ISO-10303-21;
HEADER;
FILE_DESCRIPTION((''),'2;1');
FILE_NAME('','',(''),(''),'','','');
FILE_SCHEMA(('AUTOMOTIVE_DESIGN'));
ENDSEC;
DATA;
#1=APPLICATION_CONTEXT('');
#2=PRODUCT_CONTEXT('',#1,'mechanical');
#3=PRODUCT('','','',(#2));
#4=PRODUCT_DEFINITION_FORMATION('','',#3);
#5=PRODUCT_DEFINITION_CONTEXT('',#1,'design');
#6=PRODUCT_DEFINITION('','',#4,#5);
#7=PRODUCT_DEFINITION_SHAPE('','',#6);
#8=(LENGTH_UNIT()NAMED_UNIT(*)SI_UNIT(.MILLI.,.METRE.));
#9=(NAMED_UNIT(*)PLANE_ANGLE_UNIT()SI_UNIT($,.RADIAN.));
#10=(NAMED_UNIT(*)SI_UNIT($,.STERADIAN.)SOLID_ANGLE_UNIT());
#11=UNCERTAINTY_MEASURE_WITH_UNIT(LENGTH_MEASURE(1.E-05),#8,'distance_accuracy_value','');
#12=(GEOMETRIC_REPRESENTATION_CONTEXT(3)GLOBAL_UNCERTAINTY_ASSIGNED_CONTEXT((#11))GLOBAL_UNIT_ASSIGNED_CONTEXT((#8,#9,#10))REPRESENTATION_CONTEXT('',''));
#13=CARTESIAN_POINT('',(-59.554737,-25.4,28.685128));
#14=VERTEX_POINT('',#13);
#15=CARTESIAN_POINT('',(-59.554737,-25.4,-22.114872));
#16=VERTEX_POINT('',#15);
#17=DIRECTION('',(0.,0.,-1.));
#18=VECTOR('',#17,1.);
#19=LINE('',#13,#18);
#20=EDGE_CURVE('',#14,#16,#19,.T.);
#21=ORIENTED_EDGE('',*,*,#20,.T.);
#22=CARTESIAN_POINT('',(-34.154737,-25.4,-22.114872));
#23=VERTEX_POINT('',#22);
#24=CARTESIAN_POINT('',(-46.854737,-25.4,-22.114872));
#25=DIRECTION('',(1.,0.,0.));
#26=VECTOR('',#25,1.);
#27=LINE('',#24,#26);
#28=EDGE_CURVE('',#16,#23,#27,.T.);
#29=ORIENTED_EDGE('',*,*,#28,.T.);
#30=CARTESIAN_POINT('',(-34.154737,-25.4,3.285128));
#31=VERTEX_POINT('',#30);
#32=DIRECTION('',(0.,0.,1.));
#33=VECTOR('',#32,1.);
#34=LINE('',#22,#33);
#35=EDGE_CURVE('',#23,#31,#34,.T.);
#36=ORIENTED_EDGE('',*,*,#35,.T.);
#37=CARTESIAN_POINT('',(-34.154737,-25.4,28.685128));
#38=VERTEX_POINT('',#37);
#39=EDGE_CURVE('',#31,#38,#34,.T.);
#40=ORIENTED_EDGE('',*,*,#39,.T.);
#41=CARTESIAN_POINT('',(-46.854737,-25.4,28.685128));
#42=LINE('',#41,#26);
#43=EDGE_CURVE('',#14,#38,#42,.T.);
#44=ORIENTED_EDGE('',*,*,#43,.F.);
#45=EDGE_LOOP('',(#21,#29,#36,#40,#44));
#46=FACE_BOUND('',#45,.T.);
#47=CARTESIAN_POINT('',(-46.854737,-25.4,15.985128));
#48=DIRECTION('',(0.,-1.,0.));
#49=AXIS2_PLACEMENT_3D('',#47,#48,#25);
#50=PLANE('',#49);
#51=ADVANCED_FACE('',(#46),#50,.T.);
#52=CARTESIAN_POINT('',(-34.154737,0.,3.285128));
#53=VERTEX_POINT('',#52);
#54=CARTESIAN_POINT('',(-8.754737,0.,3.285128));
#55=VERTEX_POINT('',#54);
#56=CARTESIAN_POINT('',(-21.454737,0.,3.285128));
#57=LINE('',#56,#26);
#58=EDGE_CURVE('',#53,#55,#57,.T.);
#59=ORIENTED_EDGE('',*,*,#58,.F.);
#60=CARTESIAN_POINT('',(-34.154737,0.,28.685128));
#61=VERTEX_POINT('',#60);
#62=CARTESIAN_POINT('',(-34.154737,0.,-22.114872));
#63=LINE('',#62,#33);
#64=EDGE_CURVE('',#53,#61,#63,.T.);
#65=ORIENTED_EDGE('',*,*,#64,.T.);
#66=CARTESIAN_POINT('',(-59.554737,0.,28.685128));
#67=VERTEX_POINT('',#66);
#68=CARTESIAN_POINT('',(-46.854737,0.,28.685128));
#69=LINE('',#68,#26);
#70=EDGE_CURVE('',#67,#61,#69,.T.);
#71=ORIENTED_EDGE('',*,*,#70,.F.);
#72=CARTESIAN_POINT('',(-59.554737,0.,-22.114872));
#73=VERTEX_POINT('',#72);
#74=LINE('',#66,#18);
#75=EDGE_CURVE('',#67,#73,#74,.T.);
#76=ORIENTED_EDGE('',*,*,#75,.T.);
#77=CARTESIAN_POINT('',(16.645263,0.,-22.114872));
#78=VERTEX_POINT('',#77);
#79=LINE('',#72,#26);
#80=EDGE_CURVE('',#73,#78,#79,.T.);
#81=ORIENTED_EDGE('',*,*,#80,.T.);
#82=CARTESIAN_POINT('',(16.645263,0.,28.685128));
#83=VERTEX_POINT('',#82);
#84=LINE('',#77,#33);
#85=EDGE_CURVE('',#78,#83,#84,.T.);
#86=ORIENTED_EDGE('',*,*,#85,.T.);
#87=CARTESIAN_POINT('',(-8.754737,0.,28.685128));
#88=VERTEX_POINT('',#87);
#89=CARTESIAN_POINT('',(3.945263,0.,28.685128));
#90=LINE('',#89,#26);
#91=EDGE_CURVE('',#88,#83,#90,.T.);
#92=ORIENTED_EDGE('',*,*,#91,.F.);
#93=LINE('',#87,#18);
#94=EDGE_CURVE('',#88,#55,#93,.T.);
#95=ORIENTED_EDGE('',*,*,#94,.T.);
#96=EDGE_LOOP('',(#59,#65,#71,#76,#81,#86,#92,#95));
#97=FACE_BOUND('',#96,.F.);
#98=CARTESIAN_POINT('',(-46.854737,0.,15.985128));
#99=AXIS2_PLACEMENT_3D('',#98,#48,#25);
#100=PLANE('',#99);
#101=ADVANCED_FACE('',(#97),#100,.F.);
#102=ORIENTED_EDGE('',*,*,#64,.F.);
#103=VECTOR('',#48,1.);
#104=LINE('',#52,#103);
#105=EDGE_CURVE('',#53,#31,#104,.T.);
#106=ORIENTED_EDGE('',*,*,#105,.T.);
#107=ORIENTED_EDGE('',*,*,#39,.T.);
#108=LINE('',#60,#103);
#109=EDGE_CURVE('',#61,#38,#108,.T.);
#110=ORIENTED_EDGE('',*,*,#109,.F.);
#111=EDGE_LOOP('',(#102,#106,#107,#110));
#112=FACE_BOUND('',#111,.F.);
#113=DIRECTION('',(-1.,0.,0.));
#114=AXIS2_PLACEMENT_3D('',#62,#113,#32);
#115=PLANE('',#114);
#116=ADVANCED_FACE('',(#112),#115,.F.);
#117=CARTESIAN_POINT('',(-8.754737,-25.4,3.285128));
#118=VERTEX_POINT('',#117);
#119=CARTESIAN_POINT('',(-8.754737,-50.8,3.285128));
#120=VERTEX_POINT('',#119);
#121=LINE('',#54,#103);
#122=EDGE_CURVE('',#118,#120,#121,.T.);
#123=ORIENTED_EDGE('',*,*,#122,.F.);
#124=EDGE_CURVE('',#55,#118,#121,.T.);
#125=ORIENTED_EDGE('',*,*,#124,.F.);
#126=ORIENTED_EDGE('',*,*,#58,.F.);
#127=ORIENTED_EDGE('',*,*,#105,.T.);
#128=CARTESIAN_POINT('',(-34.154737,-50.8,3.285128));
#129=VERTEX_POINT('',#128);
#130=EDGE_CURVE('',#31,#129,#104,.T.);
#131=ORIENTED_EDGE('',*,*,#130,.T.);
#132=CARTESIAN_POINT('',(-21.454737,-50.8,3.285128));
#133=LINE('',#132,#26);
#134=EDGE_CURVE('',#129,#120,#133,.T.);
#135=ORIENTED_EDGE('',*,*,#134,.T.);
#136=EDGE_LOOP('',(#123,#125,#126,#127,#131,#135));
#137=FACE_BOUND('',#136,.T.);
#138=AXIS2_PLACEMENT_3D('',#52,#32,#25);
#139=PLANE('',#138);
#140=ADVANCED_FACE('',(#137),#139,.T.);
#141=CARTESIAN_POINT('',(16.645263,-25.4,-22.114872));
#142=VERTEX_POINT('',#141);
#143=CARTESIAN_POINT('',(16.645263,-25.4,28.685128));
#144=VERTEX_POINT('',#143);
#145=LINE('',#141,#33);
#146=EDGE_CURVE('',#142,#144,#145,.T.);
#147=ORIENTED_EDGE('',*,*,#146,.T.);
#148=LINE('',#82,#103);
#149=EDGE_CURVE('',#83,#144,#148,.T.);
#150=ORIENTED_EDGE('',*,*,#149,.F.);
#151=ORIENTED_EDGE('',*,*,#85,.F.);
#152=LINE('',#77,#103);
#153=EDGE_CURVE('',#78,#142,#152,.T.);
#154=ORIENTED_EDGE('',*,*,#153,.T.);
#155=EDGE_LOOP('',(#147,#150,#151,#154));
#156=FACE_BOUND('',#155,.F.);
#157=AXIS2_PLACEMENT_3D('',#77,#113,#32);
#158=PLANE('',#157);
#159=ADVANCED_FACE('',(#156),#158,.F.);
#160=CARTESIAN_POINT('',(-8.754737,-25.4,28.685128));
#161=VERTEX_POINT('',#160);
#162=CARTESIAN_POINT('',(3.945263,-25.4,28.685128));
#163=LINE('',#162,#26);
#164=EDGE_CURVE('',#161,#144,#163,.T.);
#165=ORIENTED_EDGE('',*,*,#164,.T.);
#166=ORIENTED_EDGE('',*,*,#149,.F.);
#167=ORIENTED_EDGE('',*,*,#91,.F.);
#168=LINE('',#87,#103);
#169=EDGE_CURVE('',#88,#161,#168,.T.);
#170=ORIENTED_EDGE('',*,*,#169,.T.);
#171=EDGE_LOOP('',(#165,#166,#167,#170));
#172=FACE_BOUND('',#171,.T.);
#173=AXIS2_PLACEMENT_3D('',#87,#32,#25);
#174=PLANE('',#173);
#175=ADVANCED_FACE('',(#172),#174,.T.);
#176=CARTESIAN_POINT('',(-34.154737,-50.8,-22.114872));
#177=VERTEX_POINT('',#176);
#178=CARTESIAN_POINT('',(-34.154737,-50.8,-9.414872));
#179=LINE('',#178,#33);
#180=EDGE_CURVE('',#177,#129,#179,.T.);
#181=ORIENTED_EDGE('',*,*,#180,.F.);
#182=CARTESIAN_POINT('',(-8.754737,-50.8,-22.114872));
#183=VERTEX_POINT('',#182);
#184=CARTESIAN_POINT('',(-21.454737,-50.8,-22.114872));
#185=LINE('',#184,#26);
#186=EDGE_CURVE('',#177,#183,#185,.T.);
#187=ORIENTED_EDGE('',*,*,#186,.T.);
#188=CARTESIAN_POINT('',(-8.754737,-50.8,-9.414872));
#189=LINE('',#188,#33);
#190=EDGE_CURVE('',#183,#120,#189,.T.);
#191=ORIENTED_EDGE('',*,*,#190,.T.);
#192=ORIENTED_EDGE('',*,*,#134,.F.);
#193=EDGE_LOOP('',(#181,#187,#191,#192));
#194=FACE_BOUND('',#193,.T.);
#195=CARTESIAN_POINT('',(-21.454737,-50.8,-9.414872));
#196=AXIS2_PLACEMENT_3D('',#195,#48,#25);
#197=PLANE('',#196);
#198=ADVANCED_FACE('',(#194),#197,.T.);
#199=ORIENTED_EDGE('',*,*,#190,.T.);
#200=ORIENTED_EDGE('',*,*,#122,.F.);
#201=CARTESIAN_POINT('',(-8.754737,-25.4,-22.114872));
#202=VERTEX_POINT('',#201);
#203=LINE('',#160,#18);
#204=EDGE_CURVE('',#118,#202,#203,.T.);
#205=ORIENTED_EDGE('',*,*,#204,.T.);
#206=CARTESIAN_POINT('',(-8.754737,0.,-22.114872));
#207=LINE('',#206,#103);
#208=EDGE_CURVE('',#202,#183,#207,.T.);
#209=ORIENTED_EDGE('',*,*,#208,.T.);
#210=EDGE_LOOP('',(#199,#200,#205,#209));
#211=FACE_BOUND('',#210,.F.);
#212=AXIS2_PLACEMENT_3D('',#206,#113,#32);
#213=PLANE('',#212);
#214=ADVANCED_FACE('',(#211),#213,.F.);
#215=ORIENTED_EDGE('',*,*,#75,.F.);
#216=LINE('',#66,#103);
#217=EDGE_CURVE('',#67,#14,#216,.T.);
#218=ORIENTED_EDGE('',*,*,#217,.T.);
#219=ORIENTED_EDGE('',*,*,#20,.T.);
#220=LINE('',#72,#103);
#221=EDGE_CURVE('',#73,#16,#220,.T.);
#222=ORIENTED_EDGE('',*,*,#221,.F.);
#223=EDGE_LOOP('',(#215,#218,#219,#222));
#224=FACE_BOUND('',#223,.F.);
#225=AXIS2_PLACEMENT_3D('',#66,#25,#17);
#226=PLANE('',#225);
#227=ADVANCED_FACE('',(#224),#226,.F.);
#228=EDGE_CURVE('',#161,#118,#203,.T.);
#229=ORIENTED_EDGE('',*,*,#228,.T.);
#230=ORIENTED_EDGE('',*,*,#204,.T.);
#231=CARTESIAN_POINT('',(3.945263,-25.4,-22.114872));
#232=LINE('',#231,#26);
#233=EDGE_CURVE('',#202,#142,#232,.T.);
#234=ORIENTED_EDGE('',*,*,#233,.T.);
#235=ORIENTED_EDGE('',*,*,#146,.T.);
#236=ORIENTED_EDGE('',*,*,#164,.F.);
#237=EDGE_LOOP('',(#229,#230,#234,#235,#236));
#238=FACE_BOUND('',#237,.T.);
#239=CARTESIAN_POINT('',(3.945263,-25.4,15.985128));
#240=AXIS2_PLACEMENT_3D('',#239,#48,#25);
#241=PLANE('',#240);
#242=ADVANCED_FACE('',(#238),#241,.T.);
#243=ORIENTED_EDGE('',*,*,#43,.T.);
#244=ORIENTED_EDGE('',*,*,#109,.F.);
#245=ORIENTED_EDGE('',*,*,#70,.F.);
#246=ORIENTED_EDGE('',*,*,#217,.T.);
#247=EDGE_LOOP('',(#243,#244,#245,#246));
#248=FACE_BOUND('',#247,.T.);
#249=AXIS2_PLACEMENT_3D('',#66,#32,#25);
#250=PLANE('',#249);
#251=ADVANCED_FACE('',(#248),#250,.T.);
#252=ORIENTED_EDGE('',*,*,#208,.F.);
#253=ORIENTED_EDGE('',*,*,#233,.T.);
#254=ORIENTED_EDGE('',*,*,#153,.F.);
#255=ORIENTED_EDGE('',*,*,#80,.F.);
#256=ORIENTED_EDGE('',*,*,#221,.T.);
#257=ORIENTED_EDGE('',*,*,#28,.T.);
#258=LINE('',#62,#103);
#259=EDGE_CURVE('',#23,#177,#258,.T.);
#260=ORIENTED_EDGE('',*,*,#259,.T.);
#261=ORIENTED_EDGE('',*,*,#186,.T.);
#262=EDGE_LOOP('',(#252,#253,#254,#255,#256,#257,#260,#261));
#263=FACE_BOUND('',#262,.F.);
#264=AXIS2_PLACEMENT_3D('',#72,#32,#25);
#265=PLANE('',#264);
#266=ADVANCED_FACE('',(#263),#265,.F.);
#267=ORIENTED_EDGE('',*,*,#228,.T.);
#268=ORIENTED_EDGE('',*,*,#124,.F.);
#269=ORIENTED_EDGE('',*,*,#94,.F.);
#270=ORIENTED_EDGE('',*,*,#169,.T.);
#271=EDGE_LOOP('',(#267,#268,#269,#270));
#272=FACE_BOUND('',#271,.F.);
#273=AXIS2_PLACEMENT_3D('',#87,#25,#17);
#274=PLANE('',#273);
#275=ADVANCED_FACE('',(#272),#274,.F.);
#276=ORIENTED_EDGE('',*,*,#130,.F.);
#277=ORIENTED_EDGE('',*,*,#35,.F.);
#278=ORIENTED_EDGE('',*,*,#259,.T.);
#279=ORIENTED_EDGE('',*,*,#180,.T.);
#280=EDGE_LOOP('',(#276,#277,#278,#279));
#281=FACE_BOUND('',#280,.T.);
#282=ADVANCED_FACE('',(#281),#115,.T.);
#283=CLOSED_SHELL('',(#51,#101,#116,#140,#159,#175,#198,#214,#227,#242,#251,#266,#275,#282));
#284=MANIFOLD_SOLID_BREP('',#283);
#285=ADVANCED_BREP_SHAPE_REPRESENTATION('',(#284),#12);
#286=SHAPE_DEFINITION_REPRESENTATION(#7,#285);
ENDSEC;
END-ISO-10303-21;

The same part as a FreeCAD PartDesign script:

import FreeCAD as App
import Part
import Sketcher

V = App.Vector
Q = App.Units.Quantity

doc = App.newDocument("Part")
body = doc.addObject("PartDesign::Body", "Body")

# Sketch on XZ plane
sketch1 = body.newObject("Sketcher::SketchObject", "Sketch")
sketch1.AttachmentSupport = (doc.getObject("XZ_Plane"), [""])
sketch1.MapMode = "FlatFace"
sketch1.addGeometry([
    Part.LineSegment(V(-34, 3, 0), V(-34, -22, 0)),
    Part.LineSegment(V(-34, -22, 0), V(-9, -22, 0)),
    Part.LineSegment(V(-9, -22, 0), V(-9, 3, 0)),
    Part.LineSegment(V(-9, 3, 0), V(-34, 3, 0)),
], False)
sketch1.addConstraint([
    Sketcher.Constraint("Coincident", 0, 2, 1, 1),
    Sketcher.Constraint("Coincident", 1, 2, 2, 1),
    Sketcher.Constraint("Coincident", 2, 2, 3, 1),
    Sketcher.Constraint("Coincident", 3, 2, 0, 1),
    Sketcher.Constraint("Vertical", 0),
    Sketcher.Constraint("Horizontal", 1),
    Sketcher.Constraint("Vertical", 2),
    Sketcher.Constraint("Horizontal", 3),
    Sketcher.Constraint("Equal", 3, 0),
    Sketcher.Constraint("DistanceX", 1, 1, 1, 2, Q("1 in")),
    Sketcher.Constraint("DistanceY", 0, 2, -1, 1, 22.114872),
    Sketcher.Constraint("DistanceX", 0, 2, -1, 1, 34.154737),
])
pad1 = body.newObject("PartDesign::Pad", "Pad")
pad1.Profile = sketch1
pad1.Length = Q("2 in")

# Sketch on XZ plane
sketch2 = body.newObject("Sketcher::SketchObject", "Sketch001")
sketch2.AttachmentSupport = (doc.getObject("XZ_Plane"), [""])
sketch2.MapMode = "FlatFace"
sketch2.addGeometry([
    Part.LineSegment(V(-60, 29, 0), V(-60, -22, 0)),  # 0
    Part.LineSegment(V(-60, -22, 0), V(-34, -22, 0)),  # 1
    Part.LineSegment(V(-34, -22, 0), V(-34, 29, 0)),  # 2
    Part.LineSegment(V(-34, 29, 0), V(-60, 29, 0)),  # 3
    Part.LineSegment(V(-9, 29, 0), V(-9, -22, 0)),  # 4
    Part.LineSegment(V(-9, -22, 0), V(17, -22, 0)),  # 5
    Part.LineSegment(V(17, -22, 0), V(17, 29, 0)),  # 6
    Part.LineSegment(V(17, 29, 0), V(-9, 29, 0)),  # 7
], False)
sketch2.addConstraint([
    Sketcher.Constraint("Coincident", 0, 2, 1, 1),
    Sketcher.Constraint("Coincident", 1, 2, 2, 1),
    Sketcher.Constraint("Coincident", 2, 2, 3, 1),
    Sketcher.Constraint("Coincident", 3, 2, 0, 1),
    Sketcher.Constraint("Coincident", 4, 2, 5, 1),
    Sketcher.Constraint("Coincident", 5, 2, 6, 1),
    Sketcher.Constraint("Coincident", 6, 2, 7, 1),
    Sketcher.Constraint("Coincident", 7, 2, 4, 1),
    Sketcher.Constraint("Vertical", 0),
    Sketcher.Constraint("Horizontal", 1),
    Sketcher.Constraint("Vertical", 2),
    Sketcher.Constraint("Horizontal", 3),
    Sketcher.Constraint("Vertical", 4),
    Sketcher.Constraint("Horizontal", 5),
    Sketcher.Constraint("Vertical", 6),
    Sketcher.Constraint("Horizontal", 7),
    Sketcher.Constraint("Horizontal", 1, 2, 4, 2),
    Sketcher.Constraint("Horizontal", 3, 2, 6, 2),
    Sketcher.Constraint("Equal", 3, 5),
    Sketcher.Constraint("DistanceX", 1, 1, 1, 2, Q("1 in")),
    Sketcher.Constraint("DistanceY", 0, 2, 0, 1, Q("2 in")),
    Sketcher.Constraint("DistanceX", 1, 2, 4, 2, Q("1 in")),
    Sketcher.Constraint("DistanceY", 0, 2, -1, 1, 22.114872),
    Sketcher.Constraint("DistanceX", 0, 2, -1, 1, 59.554737),
])
pad2 = body.newObject("PartDesign::Pad", "Pad001")
pad2.Profile = sketch2
pad2.Length = Q("1 in")

doc.recompute()
